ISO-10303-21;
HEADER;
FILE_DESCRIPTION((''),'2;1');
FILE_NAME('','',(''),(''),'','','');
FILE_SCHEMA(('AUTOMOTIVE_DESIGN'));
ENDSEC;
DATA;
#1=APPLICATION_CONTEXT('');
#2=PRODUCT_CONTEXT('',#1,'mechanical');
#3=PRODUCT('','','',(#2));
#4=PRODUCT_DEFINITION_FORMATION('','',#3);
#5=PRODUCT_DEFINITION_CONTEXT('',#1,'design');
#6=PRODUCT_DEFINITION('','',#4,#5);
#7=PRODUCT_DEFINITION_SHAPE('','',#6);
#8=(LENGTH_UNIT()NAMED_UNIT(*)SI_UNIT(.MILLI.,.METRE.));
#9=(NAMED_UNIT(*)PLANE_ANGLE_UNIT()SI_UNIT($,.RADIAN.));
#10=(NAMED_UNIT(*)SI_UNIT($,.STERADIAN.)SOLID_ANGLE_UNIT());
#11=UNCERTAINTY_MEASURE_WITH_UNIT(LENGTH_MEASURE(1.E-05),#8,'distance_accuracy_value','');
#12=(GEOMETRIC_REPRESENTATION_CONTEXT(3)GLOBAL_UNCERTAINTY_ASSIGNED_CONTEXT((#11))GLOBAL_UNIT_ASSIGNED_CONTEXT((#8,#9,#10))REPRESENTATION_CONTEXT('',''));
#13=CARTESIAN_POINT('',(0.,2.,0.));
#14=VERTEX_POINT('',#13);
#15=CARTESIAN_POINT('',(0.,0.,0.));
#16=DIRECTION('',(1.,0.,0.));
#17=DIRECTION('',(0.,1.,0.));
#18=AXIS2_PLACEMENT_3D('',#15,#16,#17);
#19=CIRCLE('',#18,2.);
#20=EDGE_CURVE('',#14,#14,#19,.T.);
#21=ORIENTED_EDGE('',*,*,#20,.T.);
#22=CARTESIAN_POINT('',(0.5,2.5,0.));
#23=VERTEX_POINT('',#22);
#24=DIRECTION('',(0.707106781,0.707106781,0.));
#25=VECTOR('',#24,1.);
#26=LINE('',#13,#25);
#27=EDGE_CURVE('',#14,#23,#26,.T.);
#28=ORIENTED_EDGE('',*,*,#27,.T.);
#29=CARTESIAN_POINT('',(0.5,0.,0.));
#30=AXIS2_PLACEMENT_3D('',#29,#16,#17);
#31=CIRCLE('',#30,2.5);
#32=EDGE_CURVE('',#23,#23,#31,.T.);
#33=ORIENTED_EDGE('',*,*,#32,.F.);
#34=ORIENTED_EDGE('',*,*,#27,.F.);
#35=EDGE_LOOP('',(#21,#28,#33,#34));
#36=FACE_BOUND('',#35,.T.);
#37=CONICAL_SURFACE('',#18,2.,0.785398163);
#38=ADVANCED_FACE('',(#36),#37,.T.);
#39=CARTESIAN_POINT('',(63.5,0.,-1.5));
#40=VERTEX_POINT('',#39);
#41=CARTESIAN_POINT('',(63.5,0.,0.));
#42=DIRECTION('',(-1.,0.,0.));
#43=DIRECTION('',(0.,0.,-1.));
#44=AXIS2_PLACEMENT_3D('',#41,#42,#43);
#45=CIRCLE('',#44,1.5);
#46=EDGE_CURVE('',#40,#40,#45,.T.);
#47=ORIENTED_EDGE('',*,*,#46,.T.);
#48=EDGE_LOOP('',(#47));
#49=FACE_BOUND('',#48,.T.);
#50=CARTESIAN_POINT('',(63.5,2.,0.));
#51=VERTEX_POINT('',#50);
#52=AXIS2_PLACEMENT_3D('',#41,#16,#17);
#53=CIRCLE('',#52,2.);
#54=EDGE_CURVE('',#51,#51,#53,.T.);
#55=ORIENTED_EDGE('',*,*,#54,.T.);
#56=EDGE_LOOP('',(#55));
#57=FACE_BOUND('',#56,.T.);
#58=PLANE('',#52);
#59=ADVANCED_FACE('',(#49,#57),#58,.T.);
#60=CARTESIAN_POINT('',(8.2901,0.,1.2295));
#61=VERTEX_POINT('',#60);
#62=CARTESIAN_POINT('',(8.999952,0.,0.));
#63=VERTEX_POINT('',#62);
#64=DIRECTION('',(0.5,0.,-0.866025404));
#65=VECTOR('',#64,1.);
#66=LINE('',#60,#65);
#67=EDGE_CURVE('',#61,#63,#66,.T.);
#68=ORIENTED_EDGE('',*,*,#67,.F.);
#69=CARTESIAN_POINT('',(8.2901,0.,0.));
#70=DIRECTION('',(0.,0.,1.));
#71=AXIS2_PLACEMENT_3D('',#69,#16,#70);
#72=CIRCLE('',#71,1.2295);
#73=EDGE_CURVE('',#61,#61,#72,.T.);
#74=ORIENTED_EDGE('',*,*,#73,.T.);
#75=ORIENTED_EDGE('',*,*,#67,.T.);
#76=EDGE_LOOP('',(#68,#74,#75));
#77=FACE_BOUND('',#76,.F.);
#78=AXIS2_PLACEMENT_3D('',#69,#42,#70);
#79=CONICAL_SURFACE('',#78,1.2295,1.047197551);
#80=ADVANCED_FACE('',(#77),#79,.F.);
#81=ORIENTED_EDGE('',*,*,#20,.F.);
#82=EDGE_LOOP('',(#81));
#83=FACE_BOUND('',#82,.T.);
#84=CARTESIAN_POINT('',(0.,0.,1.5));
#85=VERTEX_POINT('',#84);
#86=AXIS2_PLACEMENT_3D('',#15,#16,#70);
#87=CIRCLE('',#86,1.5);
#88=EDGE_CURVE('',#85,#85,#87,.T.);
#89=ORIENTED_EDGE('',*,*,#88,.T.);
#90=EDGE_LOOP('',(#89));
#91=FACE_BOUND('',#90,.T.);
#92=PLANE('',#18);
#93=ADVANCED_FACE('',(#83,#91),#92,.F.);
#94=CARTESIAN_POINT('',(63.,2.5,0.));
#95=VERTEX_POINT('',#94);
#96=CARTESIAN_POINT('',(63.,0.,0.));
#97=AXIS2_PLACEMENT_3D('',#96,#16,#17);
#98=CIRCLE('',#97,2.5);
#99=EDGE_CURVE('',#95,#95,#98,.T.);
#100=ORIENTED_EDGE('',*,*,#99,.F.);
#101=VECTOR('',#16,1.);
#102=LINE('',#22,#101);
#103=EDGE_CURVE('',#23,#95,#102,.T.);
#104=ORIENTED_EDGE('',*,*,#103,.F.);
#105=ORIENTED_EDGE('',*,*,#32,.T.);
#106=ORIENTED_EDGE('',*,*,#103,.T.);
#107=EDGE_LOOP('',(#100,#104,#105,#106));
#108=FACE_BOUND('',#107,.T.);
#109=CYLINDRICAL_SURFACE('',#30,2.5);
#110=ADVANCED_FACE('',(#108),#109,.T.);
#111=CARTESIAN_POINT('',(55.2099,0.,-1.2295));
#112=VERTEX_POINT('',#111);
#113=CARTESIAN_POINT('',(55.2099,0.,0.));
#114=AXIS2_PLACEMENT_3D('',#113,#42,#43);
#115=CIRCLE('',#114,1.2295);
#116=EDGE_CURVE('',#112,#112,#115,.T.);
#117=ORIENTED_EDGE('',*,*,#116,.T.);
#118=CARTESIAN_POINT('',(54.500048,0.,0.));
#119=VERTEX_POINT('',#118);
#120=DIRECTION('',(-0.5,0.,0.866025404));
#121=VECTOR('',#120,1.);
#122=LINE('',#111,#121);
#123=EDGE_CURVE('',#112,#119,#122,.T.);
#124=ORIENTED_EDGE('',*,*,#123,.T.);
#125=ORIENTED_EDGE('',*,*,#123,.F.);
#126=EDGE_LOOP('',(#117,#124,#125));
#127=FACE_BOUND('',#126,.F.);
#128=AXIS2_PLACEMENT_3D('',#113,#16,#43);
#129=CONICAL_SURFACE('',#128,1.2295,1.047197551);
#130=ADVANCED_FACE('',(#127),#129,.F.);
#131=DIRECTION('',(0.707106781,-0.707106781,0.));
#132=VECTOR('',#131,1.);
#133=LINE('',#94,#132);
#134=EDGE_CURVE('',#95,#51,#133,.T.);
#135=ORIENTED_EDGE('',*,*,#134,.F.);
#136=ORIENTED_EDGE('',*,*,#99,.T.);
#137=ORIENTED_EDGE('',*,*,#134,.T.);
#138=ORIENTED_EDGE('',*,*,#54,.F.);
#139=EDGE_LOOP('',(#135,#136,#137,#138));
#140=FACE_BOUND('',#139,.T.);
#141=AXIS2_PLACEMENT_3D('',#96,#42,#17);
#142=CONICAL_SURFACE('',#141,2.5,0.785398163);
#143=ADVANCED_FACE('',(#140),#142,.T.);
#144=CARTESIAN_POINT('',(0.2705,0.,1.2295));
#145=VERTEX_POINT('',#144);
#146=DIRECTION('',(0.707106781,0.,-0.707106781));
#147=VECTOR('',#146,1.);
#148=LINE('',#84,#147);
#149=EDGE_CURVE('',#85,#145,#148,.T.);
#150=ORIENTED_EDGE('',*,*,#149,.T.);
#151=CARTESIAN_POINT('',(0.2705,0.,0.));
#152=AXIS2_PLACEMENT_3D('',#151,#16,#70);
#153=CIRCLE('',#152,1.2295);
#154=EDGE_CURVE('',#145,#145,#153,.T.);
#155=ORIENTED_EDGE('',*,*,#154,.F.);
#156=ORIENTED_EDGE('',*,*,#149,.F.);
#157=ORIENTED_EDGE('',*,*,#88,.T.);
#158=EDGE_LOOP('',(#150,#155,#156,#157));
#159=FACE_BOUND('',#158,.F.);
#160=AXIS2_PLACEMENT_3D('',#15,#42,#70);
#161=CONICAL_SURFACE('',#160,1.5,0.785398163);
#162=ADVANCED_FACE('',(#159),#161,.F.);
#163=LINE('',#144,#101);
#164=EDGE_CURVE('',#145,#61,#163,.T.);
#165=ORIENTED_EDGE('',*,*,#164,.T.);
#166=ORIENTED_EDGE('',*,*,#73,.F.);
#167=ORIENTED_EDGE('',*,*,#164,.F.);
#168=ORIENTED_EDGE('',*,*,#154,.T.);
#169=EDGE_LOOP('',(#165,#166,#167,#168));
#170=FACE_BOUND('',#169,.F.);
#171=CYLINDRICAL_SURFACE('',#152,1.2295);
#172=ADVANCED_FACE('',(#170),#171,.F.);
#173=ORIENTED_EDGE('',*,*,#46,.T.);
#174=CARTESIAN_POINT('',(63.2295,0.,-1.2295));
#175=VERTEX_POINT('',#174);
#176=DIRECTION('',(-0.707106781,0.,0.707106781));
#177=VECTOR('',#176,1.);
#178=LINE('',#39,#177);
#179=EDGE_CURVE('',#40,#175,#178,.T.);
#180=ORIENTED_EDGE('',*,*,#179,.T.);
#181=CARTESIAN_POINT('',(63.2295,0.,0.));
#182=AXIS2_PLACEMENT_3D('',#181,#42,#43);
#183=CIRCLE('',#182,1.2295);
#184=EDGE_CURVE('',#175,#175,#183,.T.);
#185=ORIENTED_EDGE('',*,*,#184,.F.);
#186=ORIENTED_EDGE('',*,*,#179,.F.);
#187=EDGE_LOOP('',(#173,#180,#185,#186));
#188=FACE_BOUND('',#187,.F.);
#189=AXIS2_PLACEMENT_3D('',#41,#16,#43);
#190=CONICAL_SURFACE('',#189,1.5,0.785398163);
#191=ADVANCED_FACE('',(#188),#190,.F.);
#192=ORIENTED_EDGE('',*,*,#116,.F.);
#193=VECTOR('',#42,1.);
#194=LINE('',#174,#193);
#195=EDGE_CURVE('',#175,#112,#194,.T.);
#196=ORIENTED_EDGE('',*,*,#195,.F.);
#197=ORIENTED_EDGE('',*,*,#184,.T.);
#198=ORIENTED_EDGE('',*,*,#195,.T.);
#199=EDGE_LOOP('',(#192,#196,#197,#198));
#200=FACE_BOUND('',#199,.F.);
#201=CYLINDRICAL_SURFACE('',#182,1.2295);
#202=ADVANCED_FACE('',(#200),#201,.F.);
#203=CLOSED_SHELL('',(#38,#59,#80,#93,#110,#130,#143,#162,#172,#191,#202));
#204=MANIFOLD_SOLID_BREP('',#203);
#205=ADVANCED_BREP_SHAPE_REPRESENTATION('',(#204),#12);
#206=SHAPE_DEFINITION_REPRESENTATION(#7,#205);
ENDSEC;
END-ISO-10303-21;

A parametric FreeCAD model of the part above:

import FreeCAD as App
import Part
import Sketcher
Q = App.Units.Quantity


def add_polygon(sketch, points):
    """Adds a closed chain of lines whose ends are joined by coincident constraints."""
    first, n = sketch.GeometryCount, len(points)
    for a, b in zip(points, points[1:] + points[:1]):
        sketch.addGeometry(Part.LineSegment(App.Vector(*a, 0), App.Vector(*b, 0)), False)
    for i in range(n):
        sketch.addConstraint(Sketcher.Constraint("Coincident", first + i, 2, first + (i + 1) % n, 1))

doc = App.newDocument("Part")
body = doc.addObject("PartDesign::Body", "Body")

# Sketch on XY plane
sketch1 = body.newObject("Sketcher::SketchObject", "Sketch")
sketch1.AttachmentSupport = (doc.getObject("XY_Plane"), [""])
sketch1.MapMode = "FlatFace"
add_polygon(sketch1, [(0, 0), (63.5, 0), (63.5, 2), (63, 2.5), (0.5, 2.5), (0, 2)])  # lines 0-5
sketch1.addConstraint([
    Sketcher.Constraint("Horizontal", 0),
    Sketcher.Constraint("Vertical", 1),
    Sketcher.Constraint("Horizontal", 3),
    Sketcher.Constraint("Vertical", 5),
    Sketcher.Constraint("Coincident", 5, 2, -1, 1),
    Sketcher.Constraint("Perpendicular", 2, 4),
    Sketcher.Constraint("Horizontal", 1, 2, 4, 2),
    Sketcher.Constraint("Equal", 2, 4),
    Sketcher.Constraint("DistanceY", 1, 1, 1, 2, Q("2 mm")),
    Sketcher.Constraint("DistanceX", 0, 1, 0, 2, Q("63.5 mm")),
    Sketcher.Constraint("DistanceX", 3, 2, 3, 1, Q("62.5 mm")),
])
revolution = body.newObject("PartDesign::Revolution", "Revolution")
revolution.Profile = sketch1
revolution.ReferenceAxis = (sketch1, ["H_Axis"])
revolution.Angle = 360

# Sketch on YZ plane
sketch2 = body.newObject("Sketcher::SketchObject", "Sketch001")
sketch2.AttachmentSupport = (doc.getObject("YZ_Plane"), [""])
sketch2.MapMode = "FlatFace"
sketch2.addGeometry(Part.Circle(App.Vector(0, 0, 0), App.Vector(0, 0, 1), 1.2), False)
sketch2.addConstraint([
    Sketcher.Constraint("Coincident", 0, 3, -1, 1),
    Sketcher.Constraint("Diameter", 0, Q("2.459 mm")),
])
doc.recompute()
hole = body.newObject("PartDesign::Hole", "Hole")
hole.Profile = sketch2
hole.ThreadType = "None"
hole.Diameter = 2.459
hole.DepthType = "Dimension"
hole.Depth = 8.2901
hole.DrillPoint = "Angled"
hole.DrillPointAngle = 120
hole.HoleCutType = "Countersink"
hole.HoleCutDiameter = 3
hole.HoleCutCountersinkAngle = 90
hole.Reversed = True

# Sketch on YZ plane
sketch3 = body.newObject("Sketcher::SketchObject", "Sketch002")
sketch3.AttachmentSupport = (doc.getObject("YZ_Plane"), [""])
sketch3.MapMode = "FlatFace"
sketch3.AttachmentOffset = App.Placement(App.Vector(0, 0, 63.5), App.Rotation())
sketch3.addGeometry(Part.Circle(App.Vector(0, 0, 0), App.Vector(0, 0, 1), 1.2), False)
sketch3.addConstraint([
    Sketcher.Constraint("Coincident", 0, 3, -1, 1),
    Sketcher.Constraint("Diameter", 0, Q("2.459 mm")),
])
doc.recompute()
hole2 = body.newObject("PartDesign::Hole", "Hole001")
hole2.Profile = sketch3
hole2.ThreadType = "None"
hole2.Diameter = 2.459
hole2.DepthType = "Dimension"
hole2.Depth = 8.2901
hole2.DrillPoint = "Angled"
hole2.DrillPointAngle = 120
hole2.HoleCutType = "Countersink"
hole2.HoleCutDiameter = 3
hole2.HoleCutCountersinkAngle = 90

doc.recompute()
